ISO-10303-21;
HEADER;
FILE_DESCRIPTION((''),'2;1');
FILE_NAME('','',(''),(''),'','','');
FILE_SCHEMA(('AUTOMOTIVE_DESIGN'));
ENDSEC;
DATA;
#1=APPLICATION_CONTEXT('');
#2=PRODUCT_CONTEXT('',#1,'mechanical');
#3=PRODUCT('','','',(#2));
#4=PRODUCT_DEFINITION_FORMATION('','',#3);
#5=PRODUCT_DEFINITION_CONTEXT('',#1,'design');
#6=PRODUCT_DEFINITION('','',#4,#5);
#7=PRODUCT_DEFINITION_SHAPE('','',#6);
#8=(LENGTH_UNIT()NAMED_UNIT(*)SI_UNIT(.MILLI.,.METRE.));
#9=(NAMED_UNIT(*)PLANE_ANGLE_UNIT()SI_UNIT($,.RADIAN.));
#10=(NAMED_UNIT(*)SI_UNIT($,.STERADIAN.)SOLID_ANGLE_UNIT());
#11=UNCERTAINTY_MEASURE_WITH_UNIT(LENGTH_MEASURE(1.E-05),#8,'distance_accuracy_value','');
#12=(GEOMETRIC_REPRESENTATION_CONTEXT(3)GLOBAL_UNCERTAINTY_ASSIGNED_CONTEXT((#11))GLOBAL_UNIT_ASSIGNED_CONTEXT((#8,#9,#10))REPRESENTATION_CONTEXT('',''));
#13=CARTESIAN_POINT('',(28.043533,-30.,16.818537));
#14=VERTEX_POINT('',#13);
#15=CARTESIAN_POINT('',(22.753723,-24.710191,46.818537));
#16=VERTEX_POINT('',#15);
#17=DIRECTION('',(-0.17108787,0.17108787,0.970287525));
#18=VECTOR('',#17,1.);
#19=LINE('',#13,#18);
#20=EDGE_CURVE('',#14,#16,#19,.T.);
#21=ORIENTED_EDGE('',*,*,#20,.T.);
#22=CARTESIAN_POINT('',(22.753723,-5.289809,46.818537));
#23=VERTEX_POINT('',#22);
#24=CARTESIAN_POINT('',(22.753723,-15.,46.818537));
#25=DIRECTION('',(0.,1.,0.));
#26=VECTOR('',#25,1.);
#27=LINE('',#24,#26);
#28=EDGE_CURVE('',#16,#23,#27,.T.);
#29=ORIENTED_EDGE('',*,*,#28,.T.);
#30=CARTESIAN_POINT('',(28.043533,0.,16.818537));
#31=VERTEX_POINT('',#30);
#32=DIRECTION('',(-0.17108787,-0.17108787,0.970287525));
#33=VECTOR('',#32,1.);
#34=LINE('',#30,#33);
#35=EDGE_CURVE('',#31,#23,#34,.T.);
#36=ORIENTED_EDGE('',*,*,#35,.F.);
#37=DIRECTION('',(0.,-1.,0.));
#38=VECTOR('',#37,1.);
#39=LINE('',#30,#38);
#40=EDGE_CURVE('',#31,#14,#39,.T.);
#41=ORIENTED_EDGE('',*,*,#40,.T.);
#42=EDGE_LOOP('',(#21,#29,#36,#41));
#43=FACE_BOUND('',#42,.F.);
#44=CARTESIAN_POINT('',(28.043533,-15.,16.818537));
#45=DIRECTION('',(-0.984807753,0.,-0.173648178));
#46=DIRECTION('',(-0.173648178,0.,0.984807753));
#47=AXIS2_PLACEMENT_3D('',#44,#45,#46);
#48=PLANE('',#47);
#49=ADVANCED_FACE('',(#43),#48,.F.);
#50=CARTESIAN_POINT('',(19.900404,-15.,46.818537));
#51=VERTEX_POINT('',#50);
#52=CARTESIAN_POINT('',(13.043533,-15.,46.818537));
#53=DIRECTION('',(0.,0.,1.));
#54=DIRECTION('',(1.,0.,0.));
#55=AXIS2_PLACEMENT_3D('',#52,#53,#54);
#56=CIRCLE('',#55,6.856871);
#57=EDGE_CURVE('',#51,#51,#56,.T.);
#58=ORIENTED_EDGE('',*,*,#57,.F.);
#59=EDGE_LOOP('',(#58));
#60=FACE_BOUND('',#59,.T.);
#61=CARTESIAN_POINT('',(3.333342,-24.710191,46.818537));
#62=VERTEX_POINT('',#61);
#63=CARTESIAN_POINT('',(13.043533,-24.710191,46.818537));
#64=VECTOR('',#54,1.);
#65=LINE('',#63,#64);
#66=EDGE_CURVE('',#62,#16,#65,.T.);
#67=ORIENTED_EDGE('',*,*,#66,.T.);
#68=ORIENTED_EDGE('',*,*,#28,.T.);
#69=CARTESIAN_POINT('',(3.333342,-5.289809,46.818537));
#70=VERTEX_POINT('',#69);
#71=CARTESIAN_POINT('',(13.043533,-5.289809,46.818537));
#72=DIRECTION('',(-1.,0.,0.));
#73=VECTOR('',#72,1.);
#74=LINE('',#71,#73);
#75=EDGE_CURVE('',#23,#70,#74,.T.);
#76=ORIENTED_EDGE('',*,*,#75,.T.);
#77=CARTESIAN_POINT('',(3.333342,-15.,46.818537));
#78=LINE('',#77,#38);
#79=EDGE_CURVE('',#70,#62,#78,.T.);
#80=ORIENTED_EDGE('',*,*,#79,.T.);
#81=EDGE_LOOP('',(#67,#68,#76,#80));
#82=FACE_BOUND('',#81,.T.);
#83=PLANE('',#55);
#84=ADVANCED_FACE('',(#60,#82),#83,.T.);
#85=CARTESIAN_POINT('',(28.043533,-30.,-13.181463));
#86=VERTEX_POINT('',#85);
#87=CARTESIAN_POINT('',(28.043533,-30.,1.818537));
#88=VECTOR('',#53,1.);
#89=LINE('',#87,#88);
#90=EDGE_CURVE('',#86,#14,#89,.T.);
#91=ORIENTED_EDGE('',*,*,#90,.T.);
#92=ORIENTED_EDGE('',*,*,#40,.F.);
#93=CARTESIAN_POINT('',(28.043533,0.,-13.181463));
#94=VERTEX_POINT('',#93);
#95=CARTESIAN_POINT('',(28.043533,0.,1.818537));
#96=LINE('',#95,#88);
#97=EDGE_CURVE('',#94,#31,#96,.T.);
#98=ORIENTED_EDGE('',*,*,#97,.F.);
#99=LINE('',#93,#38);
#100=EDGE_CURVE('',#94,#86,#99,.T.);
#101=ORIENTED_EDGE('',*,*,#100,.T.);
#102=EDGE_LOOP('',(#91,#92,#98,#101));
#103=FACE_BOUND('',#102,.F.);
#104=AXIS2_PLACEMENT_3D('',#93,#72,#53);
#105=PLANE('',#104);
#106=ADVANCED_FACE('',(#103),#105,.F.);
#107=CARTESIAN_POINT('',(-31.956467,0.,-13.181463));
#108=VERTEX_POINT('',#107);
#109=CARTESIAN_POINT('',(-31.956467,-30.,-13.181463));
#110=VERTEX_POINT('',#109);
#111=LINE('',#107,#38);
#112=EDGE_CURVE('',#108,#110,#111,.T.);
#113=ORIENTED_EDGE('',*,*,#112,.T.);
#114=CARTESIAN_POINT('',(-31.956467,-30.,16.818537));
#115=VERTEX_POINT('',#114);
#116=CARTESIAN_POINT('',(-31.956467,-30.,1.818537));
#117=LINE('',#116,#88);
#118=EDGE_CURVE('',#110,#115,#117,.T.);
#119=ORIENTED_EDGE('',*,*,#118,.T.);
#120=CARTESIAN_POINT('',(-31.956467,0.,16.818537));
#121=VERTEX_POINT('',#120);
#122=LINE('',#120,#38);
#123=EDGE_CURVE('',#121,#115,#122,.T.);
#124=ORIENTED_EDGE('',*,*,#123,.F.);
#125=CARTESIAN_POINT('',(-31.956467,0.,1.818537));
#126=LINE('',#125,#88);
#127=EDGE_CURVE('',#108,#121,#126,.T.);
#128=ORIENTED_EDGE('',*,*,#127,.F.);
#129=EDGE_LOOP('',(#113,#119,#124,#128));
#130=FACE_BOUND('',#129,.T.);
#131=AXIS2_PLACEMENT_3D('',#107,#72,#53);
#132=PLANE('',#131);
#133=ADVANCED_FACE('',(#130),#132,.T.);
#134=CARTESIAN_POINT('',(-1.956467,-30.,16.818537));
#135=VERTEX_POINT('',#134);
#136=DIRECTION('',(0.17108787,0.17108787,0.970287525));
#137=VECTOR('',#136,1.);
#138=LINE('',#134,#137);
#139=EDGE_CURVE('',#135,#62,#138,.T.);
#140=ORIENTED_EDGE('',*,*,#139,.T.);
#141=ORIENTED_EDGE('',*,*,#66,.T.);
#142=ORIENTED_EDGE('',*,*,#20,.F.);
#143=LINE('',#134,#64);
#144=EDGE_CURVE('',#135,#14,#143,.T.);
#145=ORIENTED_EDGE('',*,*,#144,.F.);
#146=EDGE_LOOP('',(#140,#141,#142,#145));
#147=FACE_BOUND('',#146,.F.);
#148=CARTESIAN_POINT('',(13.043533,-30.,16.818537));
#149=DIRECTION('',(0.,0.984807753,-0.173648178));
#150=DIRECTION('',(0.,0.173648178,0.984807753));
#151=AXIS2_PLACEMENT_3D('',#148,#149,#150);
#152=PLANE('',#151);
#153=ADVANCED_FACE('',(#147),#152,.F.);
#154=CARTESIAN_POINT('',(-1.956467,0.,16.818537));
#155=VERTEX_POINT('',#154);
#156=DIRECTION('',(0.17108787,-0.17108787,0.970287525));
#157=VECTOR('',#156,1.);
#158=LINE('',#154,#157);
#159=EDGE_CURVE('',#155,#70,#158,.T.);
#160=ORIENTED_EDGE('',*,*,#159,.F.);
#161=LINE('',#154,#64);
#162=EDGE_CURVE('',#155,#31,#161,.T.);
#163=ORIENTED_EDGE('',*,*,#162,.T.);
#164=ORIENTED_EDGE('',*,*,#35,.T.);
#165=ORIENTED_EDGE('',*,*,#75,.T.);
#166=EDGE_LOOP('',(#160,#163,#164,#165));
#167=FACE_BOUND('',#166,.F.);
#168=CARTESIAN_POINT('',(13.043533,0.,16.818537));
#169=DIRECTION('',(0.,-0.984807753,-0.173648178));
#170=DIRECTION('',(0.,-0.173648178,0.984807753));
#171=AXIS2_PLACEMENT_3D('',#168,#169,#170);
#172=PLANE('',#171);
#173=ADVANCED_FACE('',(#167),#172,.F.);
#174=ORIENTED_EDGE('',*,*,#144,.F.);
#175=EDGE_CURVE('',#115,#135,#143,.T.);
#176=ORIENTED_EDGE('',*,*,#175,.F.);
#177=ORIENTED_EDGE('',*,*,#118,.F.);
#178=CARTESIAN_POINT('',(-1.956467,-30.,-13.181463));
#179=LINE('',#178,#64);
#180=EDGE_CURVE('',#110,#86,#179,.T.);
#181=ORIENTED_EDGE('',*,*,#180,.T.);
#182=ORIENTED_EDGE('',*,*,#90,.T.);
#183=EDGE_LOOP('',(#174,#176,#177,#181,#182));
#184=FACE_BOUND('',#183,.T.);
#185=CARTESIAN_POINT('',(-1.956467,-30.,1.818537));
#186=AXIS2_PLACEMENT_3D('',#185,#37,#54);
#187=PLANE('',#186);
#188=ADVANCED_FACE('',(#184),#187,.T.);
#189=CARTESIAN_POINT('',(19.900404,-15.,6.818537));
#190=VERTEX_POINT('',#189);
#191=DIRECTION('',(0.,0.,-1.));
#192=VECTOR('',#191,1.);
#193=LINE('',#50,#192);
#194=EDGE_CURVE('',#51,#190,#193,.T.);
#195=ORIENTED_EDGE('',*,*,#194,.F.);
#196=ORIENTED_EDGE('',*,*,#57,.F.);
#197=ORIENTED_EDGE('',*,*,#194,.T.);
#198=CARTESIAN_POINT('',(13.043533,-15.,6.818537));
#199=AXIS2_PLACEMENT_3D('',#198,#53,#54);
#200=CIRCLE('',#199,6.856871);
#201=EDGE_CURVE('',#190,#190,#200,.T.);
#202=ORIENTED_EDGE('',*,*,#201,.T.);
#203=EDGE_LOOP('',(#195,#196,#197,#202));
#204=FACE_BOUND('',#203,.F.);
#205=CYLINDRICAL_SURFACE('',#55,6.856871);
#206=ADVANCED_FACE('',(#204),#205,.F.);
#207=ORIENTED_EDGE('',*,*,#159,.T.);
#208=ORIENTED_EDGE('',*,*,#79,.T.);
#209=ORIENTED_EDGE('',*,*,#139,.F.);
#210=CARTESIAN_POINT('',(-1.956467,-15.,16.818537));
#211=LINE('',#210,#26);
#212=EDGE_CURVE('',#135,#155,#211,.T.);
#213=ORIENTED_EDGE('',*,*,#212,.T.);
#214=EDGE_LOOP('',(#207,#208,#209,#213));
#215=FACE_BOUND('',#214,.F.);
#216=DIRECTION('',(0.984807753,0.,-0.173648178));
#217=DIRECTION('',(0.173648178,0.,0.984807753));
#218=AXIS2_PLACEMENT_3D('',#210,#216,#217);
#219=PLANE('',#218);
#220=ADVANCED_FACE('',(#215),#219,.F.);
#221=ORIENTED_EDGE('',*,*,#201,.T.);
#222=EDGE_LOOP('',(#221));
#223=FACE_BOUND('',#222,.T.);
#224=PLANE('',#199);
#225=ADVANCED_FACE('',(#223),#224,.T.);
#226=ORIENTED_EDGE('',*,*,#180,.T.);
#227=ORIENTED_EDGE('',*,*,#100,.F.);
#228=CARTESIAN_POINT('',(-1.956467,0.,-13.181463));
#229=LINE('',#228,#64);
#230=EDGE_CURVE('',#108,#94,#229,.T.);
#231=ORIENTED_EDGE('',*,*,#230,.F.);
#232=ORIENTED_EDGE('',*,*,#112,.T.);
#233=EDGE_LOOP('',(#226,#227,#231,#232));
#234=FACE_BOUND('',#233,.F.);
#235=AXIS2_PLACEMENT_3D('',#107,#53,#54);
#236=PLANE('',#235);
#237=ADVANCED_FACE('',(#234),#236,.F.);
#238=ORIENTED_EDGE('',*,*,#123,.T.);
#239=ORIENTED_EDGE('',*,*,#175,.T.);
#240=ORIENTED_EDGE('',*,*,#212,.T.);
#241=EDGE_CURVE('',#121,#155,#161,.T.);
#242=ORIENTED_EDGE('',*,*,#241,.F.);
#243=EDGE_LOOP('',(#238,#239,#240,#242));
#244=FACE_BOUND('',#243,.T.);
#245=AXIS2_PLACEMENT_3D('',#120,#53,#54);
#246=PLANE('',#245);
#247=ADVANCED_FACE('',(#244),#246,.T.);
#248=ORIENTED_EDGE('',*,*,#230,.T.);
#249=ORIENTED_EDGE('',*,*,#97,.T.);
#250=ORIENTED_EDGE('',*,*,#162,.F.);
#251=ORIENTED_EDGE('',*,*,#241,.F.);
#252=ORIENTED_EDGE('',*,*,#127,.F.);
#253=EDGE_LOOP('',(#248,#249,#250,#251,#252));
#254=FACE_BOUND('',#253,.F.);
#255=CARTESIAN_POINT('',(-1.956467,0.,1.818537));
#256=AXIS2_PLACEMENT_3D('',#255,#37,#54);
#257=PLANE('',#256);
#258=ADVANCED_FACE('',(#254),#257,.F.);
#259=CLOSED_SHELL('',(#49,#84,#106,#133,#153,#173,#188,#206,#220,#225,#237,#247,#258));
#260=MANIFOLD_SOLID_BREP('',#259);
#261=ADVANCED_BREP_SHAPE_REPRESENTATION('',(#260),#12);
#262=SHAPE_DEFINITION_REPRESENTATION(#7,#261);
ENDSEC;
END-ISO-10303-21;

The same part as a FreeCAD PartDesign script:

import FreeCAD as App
import Part
import Sketcher


def add_polygon(sketch, points):
    """Adds a closed chain of lines whose ends are joined by coincident constraints."""
    first, n = sketch.GeometryCount, len(points)
    for a, b in zip(points, points[1:] + points[:1]):
        sketch.addGeometry(Part.LineSegment(App.Vector(*a, 0), App.Vector(*b, 0)), False)
    for i in range(n):
        sketch.addConstraint(Sketcher.Constraint("Coincident", first + i, 2, first + (i + 1) % n, 1))

doc = App.newDocument("Part")
params = doc.addObject("Spreadsheet::Sheet", "Params")
for row, (alias, value) in enumerate([
    ("sketch1_width", "60 mm"),
    ("sketch1_height", "30 mm"),
    ("pad1_length", "30 mm"),
    ("sketch2_width", "30 mm"),
    ("pad2_length", "30 mm"),
    ("pad2_taper", "-10 deg"),
    ("pocket1_length", "40 mm"),
], start=1):
    params.set(f"A{row}", alias)
    params.set(f"B{row}", "=" + value)
    params.setAlias(f"B{row}", alias)

body = doc.addObject("PartDesign::Body", "Body")

# Sketch on XZ plane
sketch1 = body.newObject("Sketcher::SketchObject", "Sketch")
sketch1.AttachmentSupport = (doc.getObject("XZ_Plane"), [""])
sketch1.MapMode = "FlatFace"
add_polygon(sketch1, [(-31.956467, 16.818537), (-31.956467, -13.181463), (28.043533, -13.181463), (28.043533, 16.818537)])  # lines 0-3
sketch1.addConstraint([
    Sketcher.Constraint("Vertical", 0),
    Sketcher.Constraint("Horizontal", 1),
    Sketcher.Constraint("Vertical", 2),
    Sketcher.Constraint("Horizontal", 3),
    Sketcher.Constraint("DistanceX", 1, 1, 1, 2, 60.0),
    Sketcher.Constraint("DistanceY", 0, 2, 0, 1, 30.0),
    Sketcher.Constraint("DistanceX", 0, 2, -1, 1, 31.956467),
    Sketcher.Constraint("DistanceY", 0, 2, -1, 1, 13.181463),
])
sketch1.setExpression("Constraints[8]", "Params.sketch1_width")
sketch1.setExpression("Constraints[9]", "Params.sketch1_height")
pad1 = body.newObject("PartDesign::Pad", "Pad")
pad1.Profile = sketch1
pad1.setExpression("Length", "Params.pad1_length")

# Sketch on XY plane
sketch2 = body.newObject("Sketcher::SketchObject", "Sketch001")
sketch2.AttachmentSupport = (doc.getObject("XY_Plane"), [""])
sketch2.MapMode = "FlatFace"
sketch2.AttachmentOffset = App.Placement(App.Vector(0, 0, 16.818537), App.Rotation())
add_polygon(sketch2, [(-1.956467, 0), (-1.956467, -30), (28.043533, -30), (28.043533, 0)])  # lines 0-3
sketch2.addConstraint([
    Sketcher.Constraint("Vertical", 0),
    Sketcher.Constraint("Horizontal", 1),
    Sketcher.Constraint("Vertical", 2),
    Sketcher.Constraint("Horizontal", 3),
    Sketcher.Constraint("PointOnObject", 2, 2, -1),
    Sketcher.Constraint("Equal", 3, 0),
    Sketcher.Constraint("DistanceX", 1, 1, 1, 2, 30.0),
    Sketcher.Constraint("DistanceX", 0, 2, -1, 1, 1.956467),
])
sketch2.setExpression("Constraints[10]", "Params.sketch2_width")
pad2 = body.newObject("PartDesign::Pad", "Pad001")
pad2.Profile = sketch2
pad2.setExpression("Length", "Params.pad2_length")
pad2.setExpression("TaperAngle", "Params.pad2_taper")

# Sketch on XY plane
sketch3 = body.newObject("Sketcher::SketchObject", "Sketch002")
sketch3.AttachmentSupport = (doc.getObject("XY_Plane"), [""])
sketch3.MapMode = "FlatFace"
sketch3.AttachmentOffset = App.Placement(App.Vector(0, 0, 46.818537), App.Rotation())
sketch3.addGeometry(Part.Circle(App.Vector(13.043533, -15, 0), App.Vector(0, 0, 1), 6.856871), False)
sketch3.addConstraint([
    Sketcher.Constraint("DistanceY", 0, 3, -1, 1, 15.0),
    Sketcher.Constraint("Diameter", 0, 13.713742),
    Sketcher.Constraint("DistanceX", -1, 1, 0, 3, 13.043533),
])
pocket1 = body.newObject("PartDesign::Pocket", "Pocket")
pocket1.Profile = sketch3
pocket1.setExpression("Length", "Params.pocket1_length")

doc.recompute()
